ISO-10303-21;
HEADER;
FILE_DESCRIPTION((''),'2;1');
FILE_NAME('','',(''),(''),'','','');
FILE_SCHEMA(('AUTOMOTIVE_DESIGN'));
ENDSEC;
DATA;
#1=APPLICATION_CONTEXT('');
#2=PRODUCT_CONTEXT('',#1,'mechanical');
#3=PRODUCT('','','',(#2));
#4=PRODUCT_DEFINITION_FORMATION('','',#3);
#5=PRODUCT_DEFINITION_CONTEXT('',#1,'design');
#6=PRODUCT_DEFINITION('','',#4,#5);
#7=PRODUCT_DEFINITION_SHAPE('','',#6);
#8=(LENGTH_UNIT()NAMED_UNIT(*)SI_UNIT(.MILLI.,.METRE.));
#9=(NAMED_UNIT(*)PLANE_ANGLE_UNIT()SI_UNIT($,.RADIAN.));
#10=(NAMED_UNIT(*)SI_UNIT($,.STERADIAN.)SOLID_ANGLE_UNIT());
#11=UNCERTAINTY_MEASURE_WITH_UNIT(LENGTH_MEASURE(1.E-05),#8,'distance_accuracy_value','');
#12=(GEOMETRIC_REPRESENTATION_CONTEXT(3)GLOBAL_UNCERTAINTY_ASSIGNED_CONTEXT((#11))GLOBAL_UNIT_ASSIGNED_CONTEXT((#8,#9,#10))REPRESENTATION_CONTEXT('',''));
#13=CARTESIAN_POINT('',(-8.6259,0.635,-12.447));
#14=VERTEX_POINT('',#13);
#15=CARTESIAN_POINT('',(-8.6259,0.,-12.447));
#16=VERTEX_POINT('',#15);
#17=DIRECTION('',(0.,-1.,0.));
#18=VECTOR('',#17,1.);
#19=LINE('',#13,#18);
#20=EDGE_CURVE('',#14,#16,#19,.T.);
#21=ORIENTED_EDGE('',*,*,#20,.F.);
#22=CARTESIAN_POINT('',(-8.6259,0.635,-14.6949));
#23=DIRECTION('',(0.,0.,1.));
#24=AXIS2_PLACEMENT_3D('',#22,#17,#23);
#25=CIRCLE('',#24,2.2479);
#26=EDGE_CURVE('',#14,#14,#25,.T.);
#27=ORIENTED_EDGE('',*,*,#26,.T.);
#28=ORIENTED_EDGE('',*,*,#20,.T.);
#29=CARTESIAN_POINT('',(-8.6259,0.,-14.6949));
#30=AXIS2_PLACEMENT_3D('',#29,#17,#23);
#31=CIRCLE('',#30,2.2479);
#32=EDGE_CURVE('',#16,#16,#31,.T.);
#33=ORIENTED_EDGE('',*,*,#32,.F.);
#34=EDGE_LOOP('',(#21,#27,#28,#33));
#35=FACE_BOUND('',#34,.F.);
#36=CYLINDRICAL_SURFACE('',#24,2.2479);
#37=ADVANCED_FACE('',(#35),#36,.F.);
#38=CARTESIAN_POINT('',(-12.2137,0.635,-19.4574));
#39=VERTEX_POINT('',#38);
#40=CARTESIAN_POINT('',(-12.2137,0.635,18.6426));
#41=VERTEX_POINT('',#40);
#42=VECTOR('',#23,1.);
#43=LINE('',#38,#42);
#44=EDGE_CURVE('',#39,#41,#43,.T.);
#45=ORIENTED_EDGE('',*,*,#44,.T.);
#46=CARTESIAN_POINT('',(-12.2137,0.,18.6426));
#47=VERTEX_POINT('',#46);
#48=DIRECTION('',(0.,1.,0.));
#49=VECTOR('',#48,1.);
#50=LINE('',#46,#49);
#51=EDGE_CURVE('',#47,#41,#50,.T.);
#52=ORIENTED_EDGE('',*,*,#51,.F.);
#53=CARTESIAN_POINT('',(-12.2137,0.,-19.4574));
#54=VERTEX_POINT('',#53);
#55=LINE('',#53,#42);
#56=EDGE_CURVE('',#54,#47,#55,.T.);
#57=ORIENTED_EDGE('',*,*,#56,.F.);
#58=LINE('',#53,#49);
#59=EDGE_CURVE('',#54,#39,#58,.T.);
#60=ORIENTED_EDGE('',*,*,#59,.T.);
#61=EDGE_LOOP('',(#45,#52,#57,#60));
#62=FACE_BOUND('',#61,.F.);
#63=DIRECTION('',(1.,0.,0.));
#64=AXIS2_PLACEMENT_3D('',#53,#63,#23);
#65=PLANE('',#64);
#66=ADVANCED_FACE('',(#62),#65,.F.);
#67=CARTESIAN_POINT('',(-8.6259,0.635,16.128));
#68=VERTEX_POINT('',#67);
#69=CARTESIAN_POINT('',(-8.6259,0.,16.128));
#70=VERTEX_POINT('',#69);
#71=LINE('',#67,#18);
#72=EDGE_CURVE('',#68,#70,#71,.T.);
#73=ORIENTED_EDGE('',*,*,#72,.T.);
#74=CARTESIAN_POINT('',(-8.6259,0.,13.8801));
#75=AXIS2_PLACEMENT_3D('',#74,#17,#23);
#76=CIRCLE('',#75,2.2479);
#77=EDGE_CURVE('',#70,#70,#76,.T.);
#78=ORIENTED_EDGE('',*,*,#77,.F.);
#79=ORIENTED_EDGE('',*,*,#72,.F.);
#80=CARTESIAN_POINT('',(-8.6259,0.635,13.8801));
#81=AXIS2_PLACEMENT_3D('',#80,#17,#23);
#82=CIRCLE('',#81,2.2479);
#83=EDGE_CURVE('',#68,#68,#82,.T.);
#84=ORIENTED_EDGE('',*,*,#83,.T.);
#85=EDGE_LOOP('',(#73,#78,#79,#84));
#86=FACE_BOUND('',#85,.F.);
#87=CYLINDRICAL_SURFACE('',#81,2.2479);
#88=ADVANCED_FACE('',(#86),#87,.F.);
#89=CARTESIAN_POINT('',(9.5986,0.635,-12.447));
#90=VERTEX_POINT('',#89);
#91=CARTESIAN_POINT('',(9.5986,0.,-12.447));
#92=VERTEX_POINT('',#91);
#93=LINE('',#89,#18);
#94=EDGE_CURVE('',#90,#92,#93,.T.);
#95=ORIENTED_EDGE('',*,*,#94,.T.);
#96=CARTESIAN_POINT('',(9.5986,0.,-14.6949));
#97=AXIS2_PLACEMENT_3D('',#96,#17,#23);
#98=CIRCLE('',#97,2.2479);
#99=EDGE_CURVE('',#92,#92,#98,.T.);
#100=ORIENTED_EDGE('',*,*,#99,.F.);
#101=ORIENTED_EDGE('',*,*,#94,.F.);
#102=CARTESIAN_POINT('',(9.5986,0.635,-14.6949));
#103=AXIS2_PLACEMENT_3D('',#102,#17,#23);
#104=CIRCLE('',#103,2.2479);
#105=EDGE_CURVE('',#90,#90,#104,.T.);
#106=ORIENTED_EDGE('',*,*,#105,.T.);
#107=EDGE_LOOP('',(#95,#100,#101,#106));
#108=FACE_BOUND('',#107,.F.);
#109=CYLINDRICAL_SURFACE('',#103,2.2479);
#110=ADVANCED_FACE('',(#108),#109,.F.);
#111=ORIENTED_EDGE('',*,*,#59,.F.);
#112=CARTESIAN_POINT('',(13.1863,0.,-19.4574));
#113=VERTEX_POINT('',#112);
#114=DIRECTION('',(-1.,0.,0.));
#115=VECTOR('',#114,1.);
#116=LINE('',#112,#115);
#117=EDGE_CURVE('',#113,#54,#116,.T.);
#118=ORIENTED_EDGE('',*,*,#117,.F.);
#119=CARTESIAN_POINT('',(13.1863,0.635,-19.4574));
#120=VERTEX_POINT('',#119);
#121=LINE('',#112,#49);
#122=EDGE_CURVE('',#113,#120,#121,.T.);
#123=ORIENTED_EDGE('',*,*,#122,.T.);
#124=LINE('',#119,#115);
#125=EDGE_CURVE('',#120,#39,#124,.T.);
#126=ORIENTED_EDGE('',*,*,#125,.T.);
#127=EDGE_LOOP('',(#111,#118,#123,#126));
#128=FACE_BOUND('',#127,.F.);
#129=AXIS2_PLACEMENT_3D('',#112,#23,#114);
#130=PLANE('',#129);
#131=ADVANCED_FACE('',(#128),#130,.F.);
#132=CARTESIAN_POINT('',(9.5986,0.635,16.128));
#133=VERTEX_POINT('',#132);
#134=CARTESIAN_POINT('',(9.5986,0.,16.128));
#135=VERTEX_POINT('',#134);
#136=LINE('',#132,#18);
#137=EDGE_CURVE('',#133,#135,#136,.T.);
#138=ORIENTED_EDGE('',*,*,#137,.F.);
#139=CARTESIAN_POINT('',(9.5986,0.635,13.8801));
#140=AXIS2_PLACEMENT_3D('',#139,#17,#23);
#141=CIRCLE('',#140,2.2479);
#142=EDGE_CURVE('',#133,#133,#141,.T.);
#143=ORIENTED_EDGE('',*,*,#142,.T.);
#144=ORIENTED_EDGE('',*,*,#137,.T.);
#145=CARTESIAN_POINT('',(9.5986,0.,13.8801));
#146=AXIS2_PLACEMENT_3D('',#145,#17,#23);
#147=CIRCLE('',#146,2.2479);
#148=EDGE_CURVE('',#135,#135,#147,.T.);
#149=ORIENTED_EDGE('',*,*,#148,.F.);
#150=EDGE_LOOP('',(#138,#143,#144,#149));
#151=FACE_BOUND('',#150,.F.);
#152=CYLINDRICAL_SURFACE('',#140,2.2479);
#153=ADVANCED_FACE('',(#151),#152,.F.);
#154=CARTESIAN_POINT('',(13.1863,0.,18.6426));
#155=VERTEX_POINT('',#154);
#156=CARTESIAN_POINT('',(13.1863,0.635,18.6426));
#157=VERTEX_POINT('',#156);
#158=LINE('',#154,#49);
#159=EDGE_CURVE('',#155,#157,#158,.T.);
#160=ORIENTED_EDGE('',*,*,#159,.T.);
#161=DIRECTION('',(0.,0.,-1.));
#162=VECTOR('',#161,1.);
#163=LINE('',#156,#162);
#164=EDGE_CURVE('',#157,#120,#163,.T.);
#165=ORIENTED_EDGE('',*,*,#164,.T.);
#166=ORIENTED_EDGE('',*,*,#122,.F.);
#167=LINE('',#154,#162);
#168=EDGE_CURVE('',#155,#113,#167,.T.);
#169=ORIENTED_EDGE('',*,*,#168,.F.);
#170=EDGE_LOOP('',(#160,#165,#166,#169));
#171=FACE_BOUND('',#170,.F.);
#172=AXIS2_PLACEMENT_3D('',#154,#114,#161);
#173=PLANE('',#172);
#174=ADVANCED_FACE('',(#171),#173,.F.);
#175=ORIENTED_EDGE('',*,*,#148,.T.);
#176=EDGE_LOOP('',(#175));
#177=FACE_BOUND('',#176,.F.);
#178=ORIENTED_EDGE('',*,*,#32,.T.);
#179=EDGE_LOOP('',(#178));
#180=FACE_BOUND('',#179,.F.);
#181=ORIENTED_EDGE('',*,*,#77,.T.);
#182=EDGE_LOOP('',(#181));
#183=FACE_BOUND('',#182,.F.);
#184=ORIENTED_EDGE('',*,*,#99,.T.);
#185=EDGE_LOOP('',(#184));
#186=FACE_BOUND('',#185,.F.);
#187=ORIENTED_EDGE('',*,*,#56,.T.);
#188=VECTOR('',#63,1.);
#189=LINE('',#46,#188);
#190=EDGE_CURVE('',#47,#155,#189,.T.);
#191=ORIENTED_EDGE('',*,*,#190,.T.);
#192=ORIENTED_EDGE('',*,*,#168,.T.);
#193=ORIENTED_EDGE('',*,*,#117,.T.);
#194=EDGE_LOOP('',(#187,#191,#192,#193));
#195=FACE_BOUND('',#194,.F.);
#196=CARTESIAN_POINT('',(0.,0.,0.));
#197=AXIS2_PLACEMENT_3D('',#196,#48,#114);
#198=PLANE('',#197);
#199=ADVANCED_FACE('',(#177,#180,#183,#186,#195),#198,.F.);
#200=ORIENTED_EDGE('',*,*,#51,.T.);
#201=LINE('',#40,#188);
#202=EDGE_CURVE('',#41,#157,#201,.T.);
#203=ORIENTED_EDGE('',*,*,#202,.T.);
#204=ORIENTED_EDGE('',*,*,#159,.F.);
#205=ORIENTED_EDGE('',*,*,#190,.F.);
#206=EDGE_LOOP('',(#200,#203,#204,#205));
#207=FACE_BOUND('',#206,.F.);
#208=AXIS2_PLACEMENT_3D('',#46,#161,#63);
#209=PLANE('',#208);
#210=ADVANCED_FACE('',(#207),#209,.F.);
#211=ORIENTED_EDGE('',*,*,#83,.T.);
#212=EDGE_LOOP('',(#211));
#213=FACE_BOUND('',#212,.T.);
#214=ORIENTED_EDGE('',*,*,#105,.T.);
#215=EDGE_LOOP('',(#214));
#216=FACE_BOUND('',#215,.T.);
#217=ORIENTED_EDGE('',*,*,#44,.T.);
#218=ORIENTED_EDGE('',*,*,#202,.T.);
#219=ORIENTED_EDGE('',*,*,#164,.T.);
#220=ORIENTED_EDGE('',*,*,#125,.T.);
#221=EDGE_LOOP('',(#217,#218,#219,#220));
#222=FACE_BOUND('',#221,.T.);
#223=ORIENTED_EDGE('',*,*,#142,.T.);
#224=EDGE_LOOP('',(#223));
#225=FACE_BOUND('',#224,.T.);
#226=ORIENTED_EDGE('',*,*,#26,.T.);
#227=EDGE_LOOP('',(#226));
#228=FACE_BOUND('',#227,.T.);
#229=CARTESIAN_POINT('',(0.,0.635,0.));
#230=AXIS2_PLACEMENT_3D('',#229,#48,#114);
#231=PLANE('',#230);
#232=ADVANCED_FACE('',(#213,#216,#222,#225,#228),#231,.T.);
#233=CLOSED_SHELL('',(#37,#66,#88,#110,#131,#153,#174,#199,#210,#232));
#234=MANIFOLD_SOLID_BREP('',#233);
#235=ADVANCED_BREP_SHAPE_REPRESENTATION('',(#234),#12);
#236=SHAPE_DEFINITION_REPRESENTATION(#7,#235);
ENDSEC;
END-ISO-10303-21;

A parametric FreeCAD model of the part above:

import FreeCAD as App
import Part
import Sketcher

V = App.Vector
Q = App.Units.Quantity


def add_polygon(sketch, points):
    """Adds a closed chain of lines whose ends are joined by coincident constraints."""
    first, n = sketch.GeometryCount, len(points)
    for a, b in zip(points, points[1:] + points[:1]):
        sketch.addGeometry(Part.LineSegment(App.Vector(*a, 0), App.Vector(*b, 0)), False)
    for i in range(n):
        sketch.addConstraint(Sketcher.Constraint("Coincident", first + i, 2, first + (i + 1) % n, 1))

doc = App.newDocument("Part")
body = doc.addObject("PartDesign::Body", "Body")

# Sketch on XZ plane
sketch1 = body.newObject("Sketcher::SketchObject", "Sketch")
sketch1.AttachmentSupport = (doc.getObject("XZ_Plane"), [""])
sketch1.MapMode = "FlatFace"
add_polygon(sketch1, [(-12, -19), (-12, 19), (13, 19), (13, -19)])  # lines 0-3
sketch1.addConstraint(Sketcher.Constraint("Vertical", 0))
sketch1.addConstraint(Sketcher.Constraint("Horizontal", 1))
sketch1.addConstraint(Sketcher.Constraint("Vertical", 2))
sketch1.addConstraint(Sketcher.Constraint("Horizontal", 3))
sketch1.addConstraint(Sketcher.Constraint("DistanceX", 1, 1, 1, 2, Q("1 in")))
sketch1.addConstraint(Sketcher.Constraint("DistanceY", 0, 1, 0, 2, Q("1.5 in")))
sketch1.addConstraint(Sketcher.Constraint("DistanceX", 0, 2, -1, 1, 12.2137))
sketch1.addConstraint(Sketcher.Constraint("DistanceY", -1, 1, 0, 2, 18.6426))
pad1 = body.newObject("PartDesign::Pad", "Pad")
pad1.Profile = sketch1
pad1.Length = Q("0.025 in")
pad1.Reversed = True

# Sketch on XZ plane
sketch2 = body.newObject("Sketcher::SketchObject", "Sketch001")
sketch2.AttachmentSupport = (doc.getObject("XZ_Plane"), [""])
sketch2.MapMode = "FlatFace"
sketch2.AttachmentOffset = App.Placement(V(0, 0, -0.025 * 25.4), App.Rotation())
sketch2.addGeometry(Part.Circle(V(9.6, 13.9, 0), V(0, 0, 1), 2.2), False)
sketch2.addConstraint(Sketcher.Constraint("Diameter", 0, Q("0.177 in")))
sketch2.addConstraint(Sketcher.Constraint("DistanceX", -1, 1, 0, 3, Q("0.3779 in")))
sketch2.addConstraint(Sketcher.Constraint("DistanceY", -1, 1, 0, 3, 13.88))
doc.recompute()
hole = body.newObject("PartDesign::Hole", "Hole")
hole.Profile = sketch2
hole.ThreadType = "None"
hole.Diameter = Q("0.177 in")
hole.DepthType = "Dimension"
hole.Depth = Q("0.025 in")
hole.DrillPoint = "Flat"
hole.Reversed = True

# Sketch on XZ plane
sketch3 = body.newObject("Sketcher::SketchObject", "Sketch002")
sketch3.AttachmentSupport = (doc.getObject("XZ_Plane"), [""])
sketch3.MapMode = "FlatFace"
sketch3.AttachmentOffset = App.Placement(V(0, 0, -0.025 * 25.4), App.Rotation())
sketch3.addGeometry(Part.Circle(V(-8.6, 13.9, 0), V(0, 0, 1), 2.2), False)
sketch3.addConstraint(Sketcher.Constraint("Diameter", 0, Q("0.177 in")))
sketch3.addConstraint(Sketcher.Constraint("DistanceX", 0, 3, -1, 1, Q("0.3396 in")))
sketch3.addConstraint(Sketcher.Constraint("DistanceY", -1, 1, 0, 3, 13.88))
doc.recompute()
hole2 = body.newObject("PartDesign::Hole", "Hole001")
hole2.Profile = sketch3
hole2.ThreadType = "None"
hole2.Diameter = Q("0.177 in")
hole2.DepthType = "Dimension"
hole2.Depth = Q("0.025 in")
hole2.DrillPoint = "Flat"
hole2.Reversed = True

# Sketch on XZ plane
sketch4 = body.newObject("Sketcher::SketchObject", "Sketch003")
sketch4.AttachmentSupport = (doc.getObject("XZ_Plane"), [""])
sketch4.MapMode = "FlatFace"
sketch4.AttachmentOffset = App.Placement(V(0, 0, -0.025 * 25.4), App.Rotation())
sketch4.addGeometry(Part.Circle(V(-8.6, -14.7, 0), V(0, 0, 1), 2.2), False)
sketch4.addConstraint(Sketcher.Constraint("Diameter", 0, Q("0.177 in")))
sketch4.addConstraint(Sketcher.Constraint("DistanceX", 0, 3, -1, 1, Q("0.3396 in")))
sketch4.addConstraint(Sketcher.Constraint("DistanceY", 0, 3, -1, 1, 14.695))
doc.recompute()
hole3 = body.newObject("PartDesign::Hole", "Hole002")
hole3.Profile = sketch4
hole3.ThreadType = "None"
hole3.Diameter = Q("0.177 in")
hole3.DepthType = "Dimension"
hole3.Depth = Q("0.025 in")
hole3.DrillPoint = "Flat"
hole3.Reversed = True

# Sketch on XZ plane
sketch5 = body.newObject("Sketcher::SketchObject", "Sketch004")
sketch5.AttachmentSupport = (doc.getObject("XZ_Plane"), [""])
sketch5.MapMode = "FlatFace"
sketch5.AttachmentOffset = App.Placement(V(0, 0, -0.025 * 25.4), App.Rotation())
sketch5.addGeometry(Part.Circle(V(9.6, -14.7, 0), V(0, 0, 1), 2.2), False)
sketch5.addConstraint(Sketcher.Constraint("Diameter", 0, Q("0.177 in")))
sketch5.addConstraint(Sketcher.Constraint("DistanceX", -1, 1, 0, 3, Q("0.3779 in")))
sketch5.addConstraint(Sketcher.Constraint("DistanceY", 0, 3, -1, 1, 14.695))
doc.recompute()
hole4 = body.newObject("PartDesign::Hole", "Hole003")
hole4.Profile = sketch5
hole4.ThreadType = "None"
hole4.Diameter = Q("0.177 in")
hole4.DepthType = "Dimension"
hole4.Depth = Q("0.025 in")
hole4.DrillPoint = "Flat"
hole4.Reversed = True

doc.recompute()
